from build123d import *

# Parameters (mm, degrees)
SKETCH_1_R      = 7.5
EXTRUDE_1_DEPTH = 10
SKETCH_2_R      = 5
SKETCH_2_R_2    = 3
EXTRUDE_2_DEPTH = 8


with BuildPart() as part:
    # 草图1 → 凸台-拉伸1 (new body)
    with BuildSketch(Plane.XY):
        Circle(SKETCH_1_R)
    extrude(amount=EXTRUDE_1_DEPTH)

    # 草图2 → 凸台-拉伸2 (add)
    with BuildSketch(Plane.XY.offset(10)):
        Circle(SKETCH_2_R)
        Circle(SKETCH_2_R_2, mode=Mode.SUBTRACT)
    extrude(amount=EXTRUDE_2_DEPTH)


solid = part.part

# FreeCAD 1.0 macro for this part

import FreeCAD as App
import Part
import Sketcher
Q = App.Units.Quantity

doc = App.newDocument("Part")
body = doc.addObject("PartDesign::Body", "Body")

# Sketch on XY plane
sketch1 = body.newObject("Sketcher::SketchObject", "Sketch")
sketch1.AttachmentSupport = (doc.getObject("XY_Plane"), [""])
sketch1.MapMode = "FlatFace"
sketch1.addGeometry(Part.Circle(App.Vector(0, 0, 0), App.Vector(0, 0, 1), 8), False)
sketch1.addConstraint(Sketcher.Constraint("Coincident", 0, 3, -1, 1))
sketch1.addConstraint(Sketcher.Constraint("Diameter", 0, Q("15 mm")))
pad1 = body.newObject("PartDesign::Pad", "Pad")
pad1.Profile = sketch1
pad1.Length = 10

# Sketch on XY plane
sketch2 = body.newObject("Sketcher::SketchObject", "Sketch001")
sketch2.AttachmentSupport = (doc.getObject("XY_Plane"), [""])
sketch2.MapMode = "FlatFace"
sketch2.AttachmentOffset = App.Placement(App.Vector(0, 0, 10), App.Rotation())
sketch2.addGeometry(Part.Circle(App.Vector(0, 0, 0), App.Vector(0, 0, 1), 5), False)
sketch2.addGeometry(Part.Circle(App.Vector(0, 0, 0), App.Vector(0, 0, 1), 3), False)
sketch2.addConstraint(Sketcher.Constraint("Coincident", 0, 3, -1, 1))
sketch2.addConstraint(Sketcher.Constraint("Coincident", 1, 3, -1, 1))
sketch2.addConstraint(Sketcher.Constraint("Diameter", 0, Q("10 mm")))
sketch2.addConstraint(Sketcher.Constraint("Diameter", 1, Q("6 mm")))
pad2 = body.newObject("PartDesign::Pad", "Pad001")
pad2.Profile = sketch2
pad2.Length = 8

doc.recompute()
